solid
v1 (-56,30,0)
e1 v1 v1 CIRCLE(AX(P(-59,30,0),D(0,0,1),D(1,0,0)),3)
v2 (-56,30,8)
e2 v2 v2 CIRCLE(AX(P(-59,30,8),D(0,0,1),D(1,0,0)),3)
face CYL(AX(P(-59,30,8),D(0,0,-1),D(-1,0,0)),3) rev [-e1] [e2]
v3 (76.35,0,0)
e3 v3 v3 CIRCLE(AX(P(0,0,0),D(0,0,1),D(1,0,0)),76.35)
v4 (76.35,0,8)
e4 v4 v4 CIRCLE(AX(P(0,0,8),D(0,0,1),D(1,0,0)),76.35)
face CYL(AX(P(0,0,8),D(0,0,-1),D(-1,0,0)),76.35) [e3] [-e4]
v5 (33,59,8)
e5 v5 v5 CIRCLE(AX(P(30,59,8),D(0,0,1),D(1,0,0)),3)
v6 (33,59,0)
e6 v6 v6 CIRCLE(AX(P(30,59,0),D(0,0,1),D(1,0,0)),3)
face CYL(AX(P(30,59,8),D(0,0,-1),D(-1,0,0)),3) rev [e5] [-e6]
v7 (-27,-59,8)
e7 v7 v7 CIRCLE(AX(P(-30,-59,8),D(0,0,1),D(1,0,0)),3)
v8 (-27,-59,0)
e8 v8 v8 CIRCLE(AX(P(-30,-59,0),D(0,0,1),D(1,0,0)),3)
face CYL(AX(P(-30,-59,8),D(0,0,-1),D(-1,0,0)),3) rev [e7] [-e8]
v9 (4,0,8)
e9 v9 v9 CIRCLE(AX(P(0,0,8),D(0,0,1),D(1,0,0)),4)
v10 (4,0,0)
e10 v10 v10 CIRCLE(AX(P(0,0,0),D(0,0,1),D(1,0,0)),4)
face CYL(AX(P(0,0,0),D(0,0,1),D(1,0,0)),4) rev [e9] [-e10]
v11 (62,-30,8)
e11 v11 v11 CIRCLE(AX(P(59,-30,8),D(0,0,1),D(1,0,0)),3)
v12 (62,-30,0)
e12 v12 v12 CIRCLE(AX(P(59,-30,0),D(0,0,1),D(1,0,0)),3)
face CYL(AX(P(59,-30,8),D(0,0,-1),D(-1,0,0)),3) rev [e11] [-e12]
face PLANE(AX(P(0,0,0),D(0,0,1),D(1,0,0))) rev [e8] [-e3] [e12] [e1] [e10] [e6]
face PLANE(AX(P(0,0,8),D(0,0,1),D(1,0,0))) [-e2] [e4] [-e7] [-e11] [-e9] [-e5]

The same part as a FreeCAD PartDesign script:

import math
import FreeCAD as App
import Part
import Sketcher
from FreeCAD import Vector

doc = App.newDocument("Part")
body = doc.addObject("PartDesign::Body", "Body")

sketch1 = body.newObject("Sketcher::SketchObject", "Sketch")
sketch1.AttachmentSupport = (doc.getObject("XY_Plane"), [""])
sketch1.MapMode = "FlatFace"
sketch1.addGeometry(Part.ArcOfCircle(Part.Circle(Vector(0, 0, 0), Vector(0, 0, 1), 76.3), math.radians(0), math.radians(90)), False)
sketch1.addGeometry(Part.ArcOfCircle(Part.Circle(Vector(0, 0, 0), Vector(0, 0, 1), 76.3), math.radians(90), math.radians(199)), False)
sketch1.addGeometry(Part.ArcOfCircle(Part.Circle(Vector(0, 0, 0), Vector(0, 0, 1), 76.3), math.radians(-161), math.radians(-90)), False)
sketch1.addGeometry(Part.ArcOfCircle(Part.Circle(Vector(0, 0, 0), Vector(0, 0, 1), 76.3), math.radians(-90), math.radians(0)), False)
sketch1.addGeometry(Part.Circle(Vector(-30, -59, 0), Vector(0, 0, 1), 3), False)
sketch1.addGeometry(Part.Circle(Vector(59, -30, 0), Vector(0, 0, 1), 3), False)
sketch1.addGeometry(Part.Circle(Vector(-59, 30, 0), Vector(0, 0, 1), 3), False)
sketch1.addGeometry(Part.Circle(Vector(30, 59, 0), Vector(0, 0, 1), 3), False)
sketch1.addConstraint(Sketcher.Constraint("Tangent", 0, 2, 1, 1))
sketch1.addConstraint(Sketcher.Constraint("Tangent", 1, 2, 2, 1))
sketch1.addConstraint(Sketcher.Constraint("Tangent", 2, 2, 3, 1))
sketch1.addConstraint(Sketcher.Constraint("Tangent", 3, 2, 0, 1))
sketch1.addConstraint(Sketcher.Constraint("Coincident", 0, 3, -1, 1))
sketch1.addConstraint(Sketcher.Constraint("Equal", 0, 1))
sketch1.addConstraint(Sketcher.Constraint("Equal", 4, 5))
sketch1.addConstraint(Sketcher.Constraint("Equal", 5, 6))
sketch1.addConstraint(Sketcher.Constraint("Equal", 6, 7))
sketch1.addConstraint(Sketcher.Constraint("Symmetric", 5, 3, 6, 3, -1, 1))
sketch1.addConstraint(Sketcher.Constraint("Symmetric", 4, 3, 7, 3, -1, 1))
sketch1.addConstraint(Sketcher.Constraint("PointOnObject", 0, 2, -2))
sketch1.addConstraint(Sketcher.Constraint("PointOnObject", 2, 2, -2))
sketch1.addConstraint(Sketcher.Constraint("PointOnObject", 3, 2, -1))
sketch1.addConstraint(Sketcher.Constraint("Diameter", 4, 6.0))
sketch1.addConstraint(Sketcher.Constraint("Radius", 0, 76.35))
sketch1.addConstraint(Sketcher.Constraint("DistanceX", 4, 3, -1, 1, 30.0))
sketch1.addConstraint(Sketcher.Constraint("DistanceY", 4, 3, -1, 1, 59.0))
sketch1.addConstraint(Sketcher.Constraint("DistanceX", -1, 1, 5, 3, 59.0))
sketch1.addConstraint(Sketcher.Constraint("DistanceY", 5, 3, -1, 1, 30.0))
sketch1.addConstraint(Sketcher.Constraint("DistanceY", 1, 2, -1, 1, 24.392811))
pad1 = body.newObject("PartDesign::Pad", "Pad")
pad1.Profile = sketch1
pad1.Length = 8

sketch2 = body.newObject("Sketcher::SketchObject", "Sketch001")
sketch2.AttachmentSupport = (doc.getObject("XY_Plane"), [""])
sketch2.MapMode = "FlatFace"
sketch2.AttachmentOffset = App.Placement(Vector(0, 0, 8), App.Rotation())
sketch2.addGeometry(Part.Circle(Vector(0, 0, 0), Vector(0, 0, 1), 4), False)
sketch2.addConstraint(Sketcher.Constraint("Coincident", 0, 3, -1, 1))
sketch2.addConstraint(Sketcher.Constraint("Diameter", 0, 8.0))
pocket1 = body.newObject("PartDesign::Pocket", "Pocket")
pocket1.Profile = sketch2
pocket1.Type = "ThroughAll"

doc.recompute()
